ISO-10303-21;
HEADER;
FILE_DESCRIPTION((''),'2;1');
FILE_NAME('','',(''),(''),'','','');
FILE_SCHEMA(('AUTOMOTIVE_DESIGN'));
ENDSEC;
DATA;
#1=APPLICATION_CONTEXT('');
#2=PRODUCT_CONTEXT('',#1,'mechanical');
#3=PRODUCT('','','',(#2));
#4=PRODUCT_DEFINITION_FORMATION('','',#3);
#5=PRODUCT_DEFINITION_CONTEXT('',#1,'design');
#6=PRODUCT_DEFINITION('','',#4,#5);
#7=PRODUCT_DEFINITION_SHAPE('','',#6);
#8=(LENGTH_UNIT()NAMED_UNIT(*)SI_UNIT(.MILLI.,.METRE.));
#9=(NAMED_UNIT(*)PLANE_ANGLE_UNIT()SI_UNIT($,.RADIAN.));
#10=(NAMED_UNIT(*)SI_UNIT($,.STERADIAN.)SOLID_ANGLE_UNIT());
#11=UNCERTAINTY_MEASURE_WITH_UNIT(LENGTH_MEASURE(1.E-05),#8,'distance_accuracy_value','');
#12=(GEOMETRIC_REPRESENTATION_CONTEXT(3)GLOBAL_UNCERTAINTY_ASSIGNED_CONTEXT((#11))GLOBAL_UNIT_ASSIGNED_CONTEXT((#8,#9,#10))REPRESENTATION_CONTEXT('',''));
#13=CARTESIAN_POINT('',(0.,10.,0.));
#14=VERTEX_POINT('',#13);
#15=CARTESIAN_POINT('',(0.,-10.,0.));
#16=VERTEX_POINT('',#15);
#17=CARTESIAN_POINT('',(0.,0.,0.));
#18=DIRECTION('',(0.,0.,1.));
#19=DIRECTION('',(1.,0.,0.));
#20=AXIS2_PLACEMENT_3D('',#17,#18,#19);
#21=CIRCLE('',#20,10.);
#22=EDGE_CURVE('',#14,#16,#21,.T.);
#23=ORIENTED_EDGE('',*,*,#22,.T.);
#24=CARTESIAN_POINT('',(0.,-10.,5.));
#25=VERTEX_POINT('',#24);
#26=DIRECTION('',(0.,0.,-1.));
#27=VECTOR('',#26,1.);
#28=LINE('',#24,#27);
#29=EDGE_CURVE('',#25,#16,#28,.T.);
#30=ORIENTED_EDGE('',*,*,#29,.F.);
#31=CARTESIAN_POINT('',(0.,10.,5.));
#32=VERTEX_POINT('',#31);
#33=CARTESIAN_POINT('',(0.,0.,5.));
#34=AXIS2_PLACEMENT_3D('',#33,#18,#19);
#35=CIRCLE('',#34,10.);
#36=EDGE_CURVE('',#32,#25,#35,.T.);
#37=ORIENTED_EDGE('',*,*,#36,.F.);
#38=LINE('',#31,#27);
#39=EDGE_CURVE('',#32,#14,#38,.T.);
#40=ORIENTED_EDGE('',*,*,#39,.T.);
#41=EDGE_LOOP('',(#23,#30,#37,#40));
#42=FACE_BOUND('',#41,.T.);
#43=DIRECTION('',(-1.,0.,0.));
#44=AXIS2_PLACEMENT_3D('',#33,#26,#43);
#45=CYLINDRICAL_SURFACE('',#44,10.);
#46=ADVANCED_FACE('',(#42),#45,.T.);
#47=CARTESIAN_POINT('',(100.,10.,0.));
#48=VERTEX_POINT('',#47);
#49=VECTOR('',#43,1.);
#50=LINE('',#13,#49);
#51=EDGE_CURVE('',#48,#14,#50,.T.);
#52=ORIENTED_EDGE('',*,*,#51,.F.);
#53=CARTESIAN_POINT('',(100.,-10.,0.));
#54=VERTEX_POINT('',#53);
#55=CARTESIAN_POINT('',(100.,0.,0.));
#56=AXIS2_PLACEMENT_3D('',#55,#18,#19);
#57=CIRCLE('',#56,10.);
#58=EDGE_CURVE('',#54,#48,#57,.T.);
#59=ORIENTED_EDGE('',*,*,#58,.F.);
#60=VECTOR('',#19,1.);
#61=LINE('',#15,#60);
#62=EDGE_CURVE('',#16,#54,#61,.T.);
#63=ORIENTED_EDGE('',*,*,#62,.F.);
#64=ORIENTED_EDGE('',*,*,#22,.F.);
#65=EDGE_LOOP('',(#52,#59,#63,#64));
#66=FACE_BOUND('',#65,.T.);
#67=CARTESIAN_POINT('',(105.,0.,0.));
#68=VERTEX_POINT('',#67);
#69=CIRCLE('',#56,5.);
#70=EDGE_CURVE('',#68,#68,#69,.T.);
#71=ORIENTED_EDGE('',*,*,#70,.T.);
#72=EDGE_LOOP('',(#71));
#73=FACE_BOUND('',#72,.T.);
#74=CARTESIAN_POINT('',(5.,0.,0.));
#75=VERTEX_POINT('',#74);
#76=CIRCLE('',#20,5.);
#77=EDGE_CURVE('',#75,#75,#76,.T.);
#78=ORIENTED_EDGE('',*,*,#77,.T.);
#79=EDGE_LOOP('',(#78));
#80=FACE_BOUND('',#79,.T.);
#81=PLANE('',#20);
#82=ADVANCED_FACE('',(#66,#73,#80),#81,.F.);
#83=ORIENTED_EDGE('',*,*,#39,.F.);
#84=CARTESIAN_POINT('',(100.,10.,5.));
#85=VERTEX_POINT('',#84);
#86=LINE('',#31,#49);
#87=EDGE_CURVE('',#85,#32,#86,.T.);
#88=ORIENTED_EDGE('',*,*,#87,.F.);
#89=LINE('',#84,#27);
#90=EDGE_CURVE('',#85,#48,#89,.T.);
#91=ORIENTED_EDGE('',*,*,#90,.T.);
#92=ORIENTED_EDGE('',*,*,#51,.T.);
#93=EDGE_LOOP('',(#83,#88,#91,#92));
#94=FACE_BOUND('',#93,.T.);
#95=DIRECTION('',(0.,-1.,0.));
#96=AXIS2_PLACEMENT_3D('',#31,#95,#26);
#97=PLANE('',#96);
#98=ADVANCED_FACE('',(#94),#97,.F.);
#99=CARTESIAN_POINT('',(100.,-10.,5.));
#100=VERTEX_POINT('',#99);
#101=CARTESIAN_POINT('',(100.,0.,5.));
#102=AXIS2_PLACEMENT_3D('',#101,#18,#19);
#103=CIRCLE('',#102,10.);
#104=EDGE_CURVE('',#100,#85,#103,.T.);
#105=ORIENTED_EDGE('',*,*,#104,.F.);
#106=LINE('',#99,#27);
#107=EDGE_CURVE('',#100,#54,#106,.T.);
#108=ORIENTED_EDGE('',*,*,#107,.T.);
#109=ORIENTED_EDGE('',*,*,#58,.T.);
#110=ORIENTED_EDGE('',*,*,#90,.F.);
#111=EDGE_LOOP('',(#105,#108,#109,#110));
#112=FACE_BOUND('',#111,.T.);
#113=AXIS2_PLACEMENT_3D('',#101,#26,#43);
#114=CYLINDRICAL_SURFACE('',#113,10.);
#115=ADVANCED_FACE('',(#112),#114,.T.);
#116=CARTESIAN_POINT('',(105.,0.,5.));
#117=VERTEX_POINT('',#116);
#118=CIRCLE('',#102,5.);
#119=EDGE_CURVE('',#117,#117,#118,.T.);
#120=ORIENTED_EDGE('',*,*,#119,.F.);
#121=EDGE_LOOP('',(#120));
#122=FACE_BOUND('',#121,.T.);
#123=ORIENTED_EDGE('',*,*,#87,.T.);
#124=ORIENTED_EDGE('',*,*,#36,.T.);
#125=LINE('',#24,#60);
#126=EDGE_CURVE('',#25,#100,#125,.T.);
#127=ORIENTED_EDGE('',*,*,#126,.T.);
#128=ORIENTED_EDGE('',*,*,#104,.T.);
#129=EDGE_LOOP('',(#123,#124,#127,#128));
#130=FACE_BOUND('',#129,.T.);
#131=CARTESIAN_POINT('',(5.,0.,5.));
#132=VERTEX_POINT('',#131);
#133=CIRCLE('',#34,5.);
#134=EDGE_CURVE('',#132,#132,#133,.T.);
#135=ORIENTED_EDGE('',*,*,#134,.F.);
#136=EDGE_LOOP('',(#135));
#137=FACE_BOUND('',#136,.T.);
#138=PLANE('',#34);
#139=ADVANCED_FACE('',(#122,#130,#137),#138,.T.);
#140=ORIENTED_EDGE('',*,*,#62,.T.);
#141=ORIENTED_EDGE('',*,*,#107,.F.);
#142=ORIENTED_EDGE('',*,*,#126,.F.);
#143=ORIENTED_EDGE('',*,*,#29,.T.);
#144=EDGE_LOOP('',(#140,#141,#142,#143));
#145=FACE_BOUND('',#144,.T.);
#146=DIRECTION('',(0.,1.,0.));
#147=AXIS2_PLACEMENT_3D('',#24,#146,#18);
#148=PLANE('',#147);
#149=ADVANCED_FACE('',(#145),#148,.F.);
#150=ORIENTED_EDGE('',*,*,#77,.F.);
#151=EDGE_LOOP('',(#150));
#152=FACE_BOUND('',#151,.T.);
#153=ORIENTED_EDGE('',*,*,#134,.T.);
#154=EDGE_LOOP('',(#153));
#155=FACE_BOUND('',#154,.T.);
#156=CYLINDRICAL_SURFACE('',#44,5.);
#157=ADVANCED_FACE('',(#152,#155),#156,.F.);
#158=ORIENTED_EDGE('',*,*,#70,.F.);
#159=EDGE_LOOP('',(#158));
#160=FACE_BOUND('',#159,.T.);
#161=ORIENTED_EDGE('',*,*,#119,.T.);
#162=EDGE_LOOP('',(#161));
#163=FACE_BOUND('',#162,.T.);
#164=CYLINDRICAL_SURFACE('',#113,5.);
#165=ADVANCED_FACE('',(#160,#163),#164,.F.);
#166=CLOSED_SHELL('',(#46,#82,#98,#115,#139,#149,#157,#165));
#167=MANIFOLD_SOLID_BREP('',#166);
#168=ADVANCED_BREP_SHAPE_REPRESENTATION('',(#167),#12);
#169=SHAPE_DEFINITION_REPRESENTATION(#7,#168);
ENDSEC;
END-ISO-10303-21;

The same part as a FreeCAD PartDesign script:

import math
import FreeCAD as App
import Part
import Sketcher
from FreeCAD import Vector

doc = App.newDocument("Part")
body = doc.addObject("PartDesign::Body", "Body")

# Sketch on XY plane
sketch1 = body.newObject("Sketcher::SketchObject", "Sketch")
sketch1.AttachmentSupport = (doc.getObject("XY_Plane"), [""])
sketch1.MapMode = "FlatFace"
sketch1.addGeometry(Part.LineSegment(Vector(100, 10, 0), Vector(0, 10, 0)), False)
sketch1.addGeometry(Part.ArcOfCircle(Part.Circle(Vector(0, 0, 0), Vector(0, 0, 1), 10), math.radians(90), math.radians(270)), False)
sketch1.addGeometry(Part.LineSegment(Vector(0, -10, 0), Vector(100, -10, 0)), False)
sketch1.addGeometry(Part.ArcOfCircle(Part.Circle(Vector(100, 0, 0), Vector(0, 0, 1), 10), math.radians(-90), math.radians(90)), False)
sketch1.addGeometry(Part.Circle(Vector(100, 0, 0), Vector(0, 0, 1), 5), False)
sketch1.addGeometry(Part.Circle(Vector(0, 0, 0), Vector(0, 0, 1), 5), False)
sketch1.addConstraint(Sketcher.Constraint("Tangent", 0, 2, 1, 1))
sketch1.addConstraint(Sketcher.Constraint("Tangent", 1, 2, 2, 1))
sketch1.addConstraint(Sketcher.Constraint("Tangent", 2, 2, 3, 1))
sketch1.addConstraint(Sketcher.Constraint("Tangent", 3, 2, 0, 1))
sketch1.addConstraint(Sketcher.Constraint("Horizontal", 0))
sketch1.addConstraint(Sketcher.Constraint("Horizontal", 2))
sketch1.addConstraint(Sketcher.Constraint("Coincident", 1, 3, -1, 1))
sketch1.addConstraint(Sketcher.Constraint("Coincident", 5, 3, -1, 1))
sketch1.addConstraint(Sketcher.Constraint("Coincident", 4, 3, 3, 3))
sketch1.addConstraint(Sketcher.Constraint("Equal", 4, 5))
sketch1.addConstraint(Sketcher.Constraint("Diameter", 4, 10.0))
sketch1.addConstraint(Sketcher.Constraint("Radius", 1, 10.0))
sketch1.addConstraint(Sketcher.Constraint("DistanceX", 0, 2, 0, 1, 100.0))
pad1 = body.newObject("PartDesign::Pad", "Pad")
pad1.Profile = sketch1
pad1.Length = 5

doc.recompute()
